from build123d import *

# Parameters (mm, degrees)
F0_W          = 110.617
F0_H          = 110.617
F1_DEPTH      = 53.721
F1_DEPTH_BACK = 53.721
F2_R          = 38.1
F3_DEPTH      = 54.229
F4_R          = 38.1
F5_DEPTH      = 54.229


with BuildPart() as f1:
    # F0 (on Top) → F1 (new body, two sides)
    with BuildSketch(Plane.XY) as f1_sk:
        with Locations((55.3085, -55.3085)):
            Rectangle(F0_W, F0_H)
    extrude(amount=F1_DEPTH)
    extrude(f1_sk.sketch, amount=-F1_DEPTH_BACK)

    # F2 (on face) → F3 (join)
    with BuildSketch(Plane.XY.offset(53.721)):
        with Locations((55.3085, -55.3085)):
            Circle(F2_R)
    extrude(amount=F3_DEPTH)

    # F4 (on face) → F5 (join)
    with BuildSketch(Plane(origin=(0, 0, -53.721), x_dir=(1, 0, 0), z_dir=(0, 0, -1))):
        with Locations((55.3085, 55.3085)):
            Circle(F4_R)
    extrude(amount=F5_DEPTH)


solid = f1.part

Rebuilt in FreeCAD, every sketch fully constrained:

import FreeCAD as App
import Part
import Sketcher
Q = App.Units.Quantity

doc = App.newDocument("Part")
body = doc.addObject("PartDesign::Body", "Body")

# Sketch on XY plane
sketch1 = body.newObject("Sketcher::SketchObject", "Sketch")
sketch1.AttachmentSupport = (doc.getObject("XY_Plane"), [""])
sketch1.MapMode = "FlatFace"
sketch1.addGeometry(Part.LineSegment(App.Vector(0, 0, 0), App.Vector(0, -111, 0)), False)
sketch1.addGeometry(Part.LineSegment(App.Vector(0, -111, 0), App.Vector(111, -111, 0)), False)
sketch1.addGeometry(Part.LineSegment(App.Vector(111, -111, 0), App.Vector(111, 0, 0)), False)
sketch1.addGeometry(Part.LineSegment(App.Vector(111, 0, 0), App.Vector(0, 0, 0)), False)
sketch1.addConstraint(Sketcher.Constraint("Coincident", 0, 2, 1, 1))
sketch1.addConstraint(Sketcher.Constraint("Coincident", 1, 2, 2, 1))
sketch1.addConstraint(Sketcher.Constraint("Coincident", 2, 2, 3, 1))
sketch1.addConstraint(Sketcher.Constraint("Coincident", 3, 2, 0, 1))
sketch1.addConstraint(Sketcher.Constraint("Vertical", 0))
sketch1.addConstraint(Sketcher.Constraint("Horizontal", 1))
sketch1.addConstraint(Sketcher.Constraint("Vertical", 2))
sketch1.addConstraint(Sketcher.Constraint("Horizontal", 3))
sketch1.addConstraint(Sketcher.Constraint("Coincident", 3, 2, -1, 1))
sketch1.addConstraint(Sketcher.Constraint("Equal", 3, 0))
sketch1.addConstraint(Sketcher.Constraint("DistanceX", 1, 1, 1, 2, Q("4.355 in")))
pad1 = body.newObject("PartDesign::Pad", "Pad")
pad1.Profile = sketch1
pad1.Type = "TwoLengths"
pad1.Length = Q("2.115 in")
pad1.Length2 = Q("2.115 in")

# Sketch on XY plane
sketch2 = body.newObject("Sketcher::SketchObject", "Sketch001")
sketch2.AttachmentSupport = (doc.getObject("XY_Plane"), [""])
sketch2.MapMode = "FlatFace"
sketch2.AttachmentOffset = App.Placement(App.Vector(0, 0, 2.115 * 25.4), App.Rotation())
sketch2.addGeometry(Part.Circle(App.Vector(55, -55, 0), App.Vector(0, 0, 1), 38), False)
sketch2.addConstraint(Sketcher.Constraint("Diameter", 0, Q("3 in")))
sketch2.addConstraint(Sketcher.Constraint("DistanceX", -1, 1, 0, 3, Q("2.1775 in")))
sketch2.addConstraint(Sketcher.Constraint("DistanceY", 0, 3, -1, 1, Q("2.1775 in")))
pad2 = body.newObject("PartDesign::Pad", "Pad001")
pad2.Profile = sketch2
pad2.Length = Q("2.135 in")

# Sketch on XY plane
sketch3 = body.newObject("Sketcher::SketchObject", "Sketch002")
sketch3.AttachmentSupport = (doc.getObject("XY_Plane"), [""])
sketch3.MapMode = "FlatFace"
sketch3.AttachmentOffset = App.Placement(App.Vector(0, 0, -2.115 * 25.4), App.Rotation())
sketch3.addGeometry(Part.Circle(App.Vector(55, -55, 0), App.Vector(0, 0, 1), 38), False)
sketch3.addConstraint(Sketcher.Constraint("Diameter", 0, Q("3 in")))
sketch3.addConstraint(Sketcher.Constraint("DistanceX", -1, 1, 0, 3, Q("2.1775 in")))
sketch3.addConstraint(Sketcher.Constraint("DistanceY", 0, 3, -1, 1, Q("2.1775 in")))
pad3 = body.newObject("PartDesign::Pad", "Pad002")
pad3.Profile = sketch3
pad3.Length = Q("2.135 in")
pad3.Reversed = True

doc.recompute()
